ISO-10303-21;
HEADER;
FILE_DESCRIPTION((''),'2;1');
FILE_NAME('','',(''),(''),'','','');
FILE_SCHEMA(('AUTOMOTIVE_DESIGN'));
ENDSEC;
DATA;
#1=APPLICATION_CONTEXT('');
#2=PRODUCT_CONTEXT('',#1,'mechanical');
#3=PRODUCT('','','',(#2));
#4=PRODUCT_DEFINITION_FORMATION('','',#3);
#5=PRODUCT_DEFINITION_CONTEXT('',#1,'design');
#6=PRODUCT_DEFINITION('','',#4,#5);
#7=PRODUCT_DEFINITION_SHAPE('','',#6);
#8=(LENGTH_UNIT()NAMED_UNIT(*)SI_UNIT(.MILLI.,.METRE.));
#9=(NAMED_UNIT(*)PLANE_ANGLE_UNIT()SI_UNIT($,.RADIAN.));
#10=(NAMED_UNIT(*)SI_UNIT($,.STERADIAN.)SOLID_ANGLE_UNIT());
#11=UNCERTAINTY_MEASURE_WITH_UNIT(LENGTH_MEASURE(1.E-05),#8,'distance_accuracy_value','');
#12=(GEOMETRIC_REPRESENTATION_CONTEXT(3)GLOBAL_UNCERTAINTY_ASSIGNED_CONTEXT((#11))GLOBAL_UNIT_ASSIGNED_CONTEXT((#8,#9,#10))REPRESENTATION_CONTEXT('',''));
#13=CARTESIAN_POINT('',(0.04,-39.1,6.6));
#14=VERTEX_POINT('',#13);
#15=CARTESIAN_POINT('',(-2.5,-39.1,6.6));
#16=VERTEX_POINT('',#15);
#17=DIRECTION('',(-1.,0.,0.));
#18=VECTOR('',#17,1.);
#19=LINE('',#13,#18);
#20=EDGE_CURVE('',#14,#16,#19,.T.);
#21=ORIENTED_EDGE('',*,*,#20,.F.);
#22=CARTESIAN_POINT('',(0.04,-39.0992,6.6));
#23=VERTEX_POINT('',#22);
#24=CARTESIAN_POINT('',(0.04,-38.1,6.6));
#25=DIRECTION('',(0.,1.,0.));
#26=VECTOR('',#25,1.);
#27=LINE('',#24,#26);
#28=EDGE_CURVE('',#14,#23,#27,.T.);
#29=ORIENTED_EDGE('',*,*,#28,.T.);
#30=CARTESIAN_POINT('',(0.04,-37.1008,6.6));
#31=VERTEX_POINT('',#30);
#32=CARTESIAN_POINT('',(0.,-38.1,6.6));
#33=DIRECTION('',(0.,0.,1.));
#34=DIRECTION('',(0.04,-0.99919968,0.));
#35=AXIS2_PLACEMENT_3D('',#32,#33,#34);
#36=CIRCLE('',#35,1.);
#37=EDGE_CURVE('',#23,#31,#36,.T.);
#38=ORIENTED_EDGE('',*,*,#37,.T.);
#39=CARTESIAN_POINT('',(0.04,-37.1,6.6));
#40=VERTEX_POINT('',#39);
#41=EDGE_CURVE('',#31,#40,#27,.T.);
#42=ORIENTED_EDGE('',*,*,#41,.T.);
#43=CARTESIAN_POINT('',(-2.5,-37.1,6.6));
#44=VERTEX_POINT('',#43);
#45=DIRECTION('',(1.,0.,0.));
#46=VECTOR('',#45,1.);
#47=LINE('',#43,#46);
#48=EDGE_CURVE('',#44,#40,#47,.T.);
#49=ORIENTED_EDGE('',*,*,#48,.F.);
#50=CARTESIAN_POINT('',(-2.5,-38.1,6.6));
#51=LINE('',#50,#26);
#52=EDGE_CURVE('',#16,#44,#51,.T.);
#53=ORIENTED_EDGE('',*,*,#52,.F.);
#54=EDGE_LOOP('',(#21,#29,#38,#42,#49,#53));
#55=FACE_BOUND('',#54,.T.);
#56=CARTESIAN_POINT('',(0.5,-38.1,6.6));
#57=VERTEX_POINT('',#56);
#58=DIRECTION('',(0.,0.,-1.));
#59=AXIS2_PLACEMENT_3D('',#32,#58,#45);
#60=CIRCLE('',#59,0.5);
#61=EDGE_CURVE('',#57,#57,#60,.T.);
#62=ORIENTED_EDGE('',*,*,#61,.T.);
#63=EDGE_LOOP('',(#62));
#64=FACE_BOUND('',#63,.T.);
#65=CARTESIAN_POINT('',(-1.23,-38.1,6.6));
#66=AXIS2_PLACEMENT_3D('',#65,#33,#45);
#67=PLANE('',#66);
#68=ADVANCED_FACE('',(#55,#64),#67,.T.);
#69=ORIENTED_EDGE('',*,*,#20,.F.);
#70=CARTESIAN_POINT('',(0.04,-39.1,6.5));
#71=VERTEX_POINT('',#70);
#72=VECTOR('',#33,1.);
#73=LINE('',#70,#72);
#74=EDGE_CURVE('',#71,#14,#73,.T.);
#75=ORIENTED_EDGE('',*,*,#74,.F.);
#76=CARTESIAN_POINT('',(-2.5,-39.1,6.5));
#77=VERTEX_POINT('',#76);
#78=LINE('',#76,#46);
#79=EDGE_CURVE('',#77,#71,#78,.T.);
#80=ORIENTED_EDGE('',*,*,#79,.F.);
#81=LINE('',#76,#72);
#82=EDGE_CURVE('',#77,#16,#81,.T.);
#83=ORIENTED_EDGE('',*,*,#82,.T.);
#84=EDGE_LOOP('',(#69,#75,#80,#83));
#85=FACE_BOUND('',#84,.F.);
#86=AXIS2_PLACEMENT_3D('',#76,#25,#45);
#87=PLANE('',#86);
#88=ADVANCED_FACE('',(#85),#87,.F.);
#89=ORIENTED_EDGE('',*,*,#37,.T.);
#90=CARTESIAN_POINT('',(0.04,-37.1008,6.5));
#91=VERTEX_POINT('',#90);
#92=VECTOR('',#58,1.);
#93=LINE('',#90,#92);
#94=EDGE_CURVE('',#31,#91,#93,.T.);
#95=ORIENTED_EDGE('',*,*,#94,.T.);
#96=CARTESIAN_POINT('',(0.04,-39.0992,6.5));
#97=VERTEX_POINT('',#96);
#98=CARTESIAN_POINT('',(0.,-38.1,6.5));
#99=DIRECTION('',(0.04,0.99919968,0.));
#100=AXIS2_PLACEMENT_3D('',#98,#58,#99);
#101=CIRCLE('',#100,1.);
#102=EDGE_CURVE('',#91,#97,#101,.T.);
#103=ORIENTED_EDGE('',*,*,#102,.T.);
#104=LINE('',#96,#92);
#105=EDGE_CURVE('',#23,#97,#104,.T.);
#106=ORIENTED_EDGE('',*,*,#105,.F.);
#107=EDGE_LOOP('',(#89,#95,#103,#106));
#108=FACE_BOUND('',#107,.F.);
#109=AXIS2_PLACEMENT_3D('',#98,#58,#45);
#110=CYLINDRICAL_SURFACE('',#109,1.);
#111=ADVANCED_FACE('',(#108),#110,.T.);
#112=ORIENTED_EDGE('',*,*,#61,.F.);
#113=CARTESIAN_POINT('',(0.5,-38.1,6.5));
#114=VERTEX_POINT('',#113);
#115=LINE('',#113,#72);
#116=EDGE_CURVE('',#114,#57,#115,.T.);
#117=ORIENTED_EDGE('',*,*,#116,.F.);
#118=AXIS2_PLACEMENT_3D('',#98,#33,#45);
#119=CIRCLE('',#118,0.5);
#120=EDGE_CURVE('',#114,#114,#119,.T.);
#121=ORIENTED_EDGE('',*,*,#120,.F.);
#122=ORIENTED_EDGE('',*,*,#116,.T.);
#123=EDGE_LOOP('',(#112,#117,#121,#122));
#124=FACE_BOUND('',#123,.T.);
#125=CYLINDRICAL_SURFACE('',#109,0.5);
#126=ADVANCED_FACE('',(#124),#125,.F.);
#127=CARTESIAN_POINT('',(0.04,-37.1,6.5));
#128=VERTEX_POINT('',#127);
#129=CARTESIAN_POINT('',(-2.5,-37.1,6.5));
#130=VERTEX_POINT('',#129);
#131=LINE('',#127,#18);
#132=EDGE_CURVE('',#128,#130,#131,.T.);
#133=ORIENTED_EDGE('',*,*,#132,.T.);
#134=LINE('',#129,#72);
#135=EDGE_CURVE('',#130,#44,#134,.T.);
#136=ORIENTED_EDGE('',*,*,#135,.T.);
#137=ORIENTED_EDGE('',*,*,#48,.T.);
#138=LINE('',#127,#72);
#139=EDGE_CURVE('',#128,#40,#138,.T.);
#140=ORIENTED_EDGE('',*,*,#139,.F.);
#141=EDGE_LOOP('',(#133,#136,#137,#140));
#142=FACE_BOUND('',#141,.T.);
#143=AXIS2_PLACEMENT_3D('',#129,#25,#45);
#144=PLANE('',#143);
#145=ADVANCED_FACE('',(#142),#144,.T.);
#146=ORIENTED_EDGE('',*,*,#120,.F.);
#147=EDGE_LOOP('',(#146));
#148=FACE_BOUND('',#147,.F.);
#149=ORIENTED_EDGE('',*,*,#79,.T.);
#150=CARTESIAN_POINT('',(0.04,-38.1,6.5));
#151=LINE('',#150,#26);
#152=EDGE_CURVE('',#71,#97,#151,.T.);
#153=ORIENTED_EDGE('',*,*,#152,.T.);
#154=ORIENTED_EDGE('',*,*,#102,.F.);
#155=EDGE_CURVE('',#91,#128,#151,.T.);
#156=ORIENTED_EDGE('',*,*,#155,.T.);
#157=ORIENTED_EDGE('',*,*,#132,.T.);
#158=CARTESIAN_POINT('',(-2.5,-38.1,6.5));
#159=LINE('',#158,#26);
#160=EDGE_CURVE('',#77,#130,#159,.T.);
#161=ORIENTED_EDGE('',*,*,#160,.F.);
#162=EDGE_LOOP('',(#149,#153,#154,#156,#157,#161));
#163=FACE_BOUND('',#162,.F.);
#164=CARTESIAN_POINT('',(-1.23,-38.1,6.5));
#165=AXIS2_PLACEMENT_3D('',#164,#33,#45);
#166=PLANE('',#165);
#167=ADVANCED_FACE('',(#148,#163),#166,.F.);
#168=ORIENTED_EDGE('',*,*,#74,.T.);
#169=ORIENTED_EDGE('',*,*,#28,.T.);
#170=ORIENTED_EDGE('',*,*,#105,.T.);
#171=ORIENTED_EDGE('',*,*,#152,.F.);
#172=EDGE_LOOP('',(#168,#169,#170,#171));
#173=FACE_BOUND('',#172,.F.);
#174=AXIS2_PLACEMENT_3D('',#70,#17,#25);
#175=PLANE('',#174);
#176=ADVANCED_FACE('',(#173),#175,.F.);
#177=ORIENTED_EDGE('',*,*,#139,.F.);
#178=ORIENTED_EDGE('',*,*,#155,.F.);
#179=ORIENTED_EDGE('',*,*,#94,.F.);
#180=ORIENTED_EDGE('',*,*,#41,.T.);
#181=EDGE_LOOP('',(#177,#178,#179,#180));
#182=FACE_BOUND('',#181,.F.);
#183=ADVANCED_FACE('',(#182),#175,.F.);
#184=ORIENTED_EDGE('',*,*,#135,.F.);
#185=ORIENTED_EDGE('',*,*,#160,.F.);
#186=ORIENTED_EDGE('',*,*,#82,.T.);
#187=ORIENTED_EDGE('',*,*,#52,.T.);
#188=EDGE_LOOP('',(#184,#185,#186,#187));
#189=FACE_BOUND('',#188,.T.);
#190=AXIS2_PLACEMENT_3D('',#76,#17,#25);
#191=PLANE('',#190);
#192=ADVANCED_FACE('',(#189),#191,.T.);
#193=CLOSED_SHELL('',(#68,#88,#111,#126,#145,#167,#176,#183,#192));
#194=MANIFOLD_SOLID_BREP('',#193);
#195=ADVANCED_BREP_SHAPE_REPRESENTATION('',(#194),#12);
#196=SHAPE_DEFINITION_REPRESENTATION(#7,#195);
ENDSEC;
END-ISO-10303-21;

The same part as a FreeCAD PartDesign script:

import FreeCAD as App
import Part
import Sketcher
from FreeCAD import Vector

doc = App.newDocument("Part")
body = doc.addObject("PartDesign::Body", "Body")

sketch1 = body.newObject("Sketcher::SketchObject", "Sketch")
sketch1.AttachmentSupport = (doc.getObject("XY_Plane"), [""])
sketch1.MapMode = "FlatFace"
sketch1.AttachmentOffset = App.Placement(Vector(0, 0, 1), App.Rotation())
sketch1.addGeometry(Part.Circle(Vector(0, 0, 0), Vector(0, 0, 1), 0.5), False)
sketch1.addConstraint(Sketcher.Constraint("Coincident", 0, 3, -1, 1))
sketch1.addConstraint(Sketcher.Constraint("Diameter", 0, 1.0))
pad1 = body.newObject("PartDesign::Pad", "Pad")
pad1.Profile = sketch1
pad1.Length = 0.1
body2 = doc.addObject("PartDesign::Body", "Body001")

sketch2 = body2.newObject("Sketcher::SketchObject", "Sketch001")
sketch2.AttachmentSupport = (doc.getObject("XY_Plane001"), [""])
sketch2.MapMode = "FlatFace"
sketch2.AttachmentOffset = App.Placement(Vector(0, 0, 1), App.Rotation())
sketch2.addGeometry(Part.LineSegment(Vector(-2.5, 1, 0), Vector(-2.5, -1, 0)), False)
sketch2.addGeometry(Part.LineSegment(Vector(-2.5, -1, 0), Vector(0, -1, 0)), False)
sketch2.addGeometry(Part.LineSegment(Vector(0, -1, 0), Vector(0, 1, 0)), False)
sketch2.addGeometry(Part.LineSegment(Vector(0, 1, 0), Vector(-2.5, 1, 0)), False)
sketch2.addConstraint(Sketcher.Constraint("Coincident", 0, 2, 1, 1))
sketch2.addConstraint(Sketcher.Constraint("Coincident", 1, 2, 2, 1))
sketch2.addConstraint(Sketcher.Constraint("Coincident", 2, 2, 3, 1))
sketch2.addConstraint(Sketcher.Constraint("Coincident", 3, 2, 0, 1))
sketch2.addConstraint(Sketcher.Constraint("Vertical", 0))
sketch2.addConstraint(Sketcher.Constraint("Horizontal", 1))
sketch2.addConstraint(Sketcher.Constraint("Vertical", 2))
sketch2.addConstraint(Sketcher.Constraint("Horizontal", 3))
sketch2.addConstraint(Sketcher.Constraint("DistanceY", 0, 2, 0, 1, 2.0))
sketch2.addConstraint(Sketcher.Constraint("DistanceY", 0, 2, -1, 1, 1.0))
sketch2.addConstraint(Sketcher.Constraint("DistanceX", 1, 1, 1, 2, 2.54))
sketch2.addConstraint(Sketcher.Constraint("DistanceX", 0, 2, -1, 1, 2.5))
pad2 = body2.newObject("PartDesign::Pad", "Pad001")
pad2.Profile = sketch2
pad2.Length = 0.1
doc.recompute()

boolean = body2.newObject("PartDesign::Boolean", "Boolean")
boolean.Type = "Cut"
boolean.addObjects([body])
body3 = doc.addObject("PartDesign::Body", "Body002")

sketch3 = body3.newObject("Sketcher::SketchObject", "Sketch002")
sketch3.AttachmentSupport = (doc.getObject("XY_Plane002"), [""])
sketch3.MapMode = "FlatFace"
sketch3.AttachmentOffset = App.Placement(Vector(0, 0, 1), App.Rotation())
sketch3.addGeometry(Part.Circle(Vector(0, 0, 0), Vector(0, 0, 1), 0.5), False)
sketch3.addConstraint(Sketcher.Constraint("Coincident", 0, 3, -1, 1))
sketch3.addConstraint(Sketcher.Constraint("Diameter", 0, 1.0))
pad3 = body3.newObject("PartDesign::Pad", "Pad002")
pad3.Profile = sketch3
pad3.Length = 0.1
body4 = doc.addObject("PartDesign::Body", "Body003")

sketch4 = body4.newObject("Sketcher::SketchObject", "Sketch003")
sketch4.AttachmentSupport = (doc.getObject("XY_Plane003"), [""])
sketch4.MapMode = "FlatFace"
sketch4.AttachmentOffset = App.Placement(Vector(0, 0, 1), App.Rotation())
sketch4.addGeometry(Part.Circle(Vector(0, 0, 0), Vector(0, 0, 1), 1), False)
sketch4.addConstraint(Sketcher.Constraint("Coincident", 0, 3, -1, 1))
sketch4.addConstraint(Sketcher.Constraint("Diameter", 0, 2.0))
pad4 = body4.newObject("PartDesign::Pad", "Pad003")
pad4.Profile = sketch4
pad4.Length = 0.1
doc.recompute()

boolean2 = body4.newObject("PartDesign::Boolean", "Boolean001")
boolean2.Type = "Cut"
boolean2.addObjects([body3])
doc.recompute()

boolean3 = body4.newObject("PartDesign::Boolean", "Boolean002")
boolean3.Type = "Fuse"
boolean3.addObjects([body2])
body5 = doc.addObject("PartDesign::Body", "Body004")
doc.recompute()

body4.Placement = App.Placement(Vector(0, -38.1, 5.5), App.Rotation(Vector(0, 0, 1), 0))
boolean4 = body5.newObject("PartDesign::Boolean", "Boolean003")
boolean4.Type = "Fuse"
boolean4.addObjects([body4])

doc.recompute()
